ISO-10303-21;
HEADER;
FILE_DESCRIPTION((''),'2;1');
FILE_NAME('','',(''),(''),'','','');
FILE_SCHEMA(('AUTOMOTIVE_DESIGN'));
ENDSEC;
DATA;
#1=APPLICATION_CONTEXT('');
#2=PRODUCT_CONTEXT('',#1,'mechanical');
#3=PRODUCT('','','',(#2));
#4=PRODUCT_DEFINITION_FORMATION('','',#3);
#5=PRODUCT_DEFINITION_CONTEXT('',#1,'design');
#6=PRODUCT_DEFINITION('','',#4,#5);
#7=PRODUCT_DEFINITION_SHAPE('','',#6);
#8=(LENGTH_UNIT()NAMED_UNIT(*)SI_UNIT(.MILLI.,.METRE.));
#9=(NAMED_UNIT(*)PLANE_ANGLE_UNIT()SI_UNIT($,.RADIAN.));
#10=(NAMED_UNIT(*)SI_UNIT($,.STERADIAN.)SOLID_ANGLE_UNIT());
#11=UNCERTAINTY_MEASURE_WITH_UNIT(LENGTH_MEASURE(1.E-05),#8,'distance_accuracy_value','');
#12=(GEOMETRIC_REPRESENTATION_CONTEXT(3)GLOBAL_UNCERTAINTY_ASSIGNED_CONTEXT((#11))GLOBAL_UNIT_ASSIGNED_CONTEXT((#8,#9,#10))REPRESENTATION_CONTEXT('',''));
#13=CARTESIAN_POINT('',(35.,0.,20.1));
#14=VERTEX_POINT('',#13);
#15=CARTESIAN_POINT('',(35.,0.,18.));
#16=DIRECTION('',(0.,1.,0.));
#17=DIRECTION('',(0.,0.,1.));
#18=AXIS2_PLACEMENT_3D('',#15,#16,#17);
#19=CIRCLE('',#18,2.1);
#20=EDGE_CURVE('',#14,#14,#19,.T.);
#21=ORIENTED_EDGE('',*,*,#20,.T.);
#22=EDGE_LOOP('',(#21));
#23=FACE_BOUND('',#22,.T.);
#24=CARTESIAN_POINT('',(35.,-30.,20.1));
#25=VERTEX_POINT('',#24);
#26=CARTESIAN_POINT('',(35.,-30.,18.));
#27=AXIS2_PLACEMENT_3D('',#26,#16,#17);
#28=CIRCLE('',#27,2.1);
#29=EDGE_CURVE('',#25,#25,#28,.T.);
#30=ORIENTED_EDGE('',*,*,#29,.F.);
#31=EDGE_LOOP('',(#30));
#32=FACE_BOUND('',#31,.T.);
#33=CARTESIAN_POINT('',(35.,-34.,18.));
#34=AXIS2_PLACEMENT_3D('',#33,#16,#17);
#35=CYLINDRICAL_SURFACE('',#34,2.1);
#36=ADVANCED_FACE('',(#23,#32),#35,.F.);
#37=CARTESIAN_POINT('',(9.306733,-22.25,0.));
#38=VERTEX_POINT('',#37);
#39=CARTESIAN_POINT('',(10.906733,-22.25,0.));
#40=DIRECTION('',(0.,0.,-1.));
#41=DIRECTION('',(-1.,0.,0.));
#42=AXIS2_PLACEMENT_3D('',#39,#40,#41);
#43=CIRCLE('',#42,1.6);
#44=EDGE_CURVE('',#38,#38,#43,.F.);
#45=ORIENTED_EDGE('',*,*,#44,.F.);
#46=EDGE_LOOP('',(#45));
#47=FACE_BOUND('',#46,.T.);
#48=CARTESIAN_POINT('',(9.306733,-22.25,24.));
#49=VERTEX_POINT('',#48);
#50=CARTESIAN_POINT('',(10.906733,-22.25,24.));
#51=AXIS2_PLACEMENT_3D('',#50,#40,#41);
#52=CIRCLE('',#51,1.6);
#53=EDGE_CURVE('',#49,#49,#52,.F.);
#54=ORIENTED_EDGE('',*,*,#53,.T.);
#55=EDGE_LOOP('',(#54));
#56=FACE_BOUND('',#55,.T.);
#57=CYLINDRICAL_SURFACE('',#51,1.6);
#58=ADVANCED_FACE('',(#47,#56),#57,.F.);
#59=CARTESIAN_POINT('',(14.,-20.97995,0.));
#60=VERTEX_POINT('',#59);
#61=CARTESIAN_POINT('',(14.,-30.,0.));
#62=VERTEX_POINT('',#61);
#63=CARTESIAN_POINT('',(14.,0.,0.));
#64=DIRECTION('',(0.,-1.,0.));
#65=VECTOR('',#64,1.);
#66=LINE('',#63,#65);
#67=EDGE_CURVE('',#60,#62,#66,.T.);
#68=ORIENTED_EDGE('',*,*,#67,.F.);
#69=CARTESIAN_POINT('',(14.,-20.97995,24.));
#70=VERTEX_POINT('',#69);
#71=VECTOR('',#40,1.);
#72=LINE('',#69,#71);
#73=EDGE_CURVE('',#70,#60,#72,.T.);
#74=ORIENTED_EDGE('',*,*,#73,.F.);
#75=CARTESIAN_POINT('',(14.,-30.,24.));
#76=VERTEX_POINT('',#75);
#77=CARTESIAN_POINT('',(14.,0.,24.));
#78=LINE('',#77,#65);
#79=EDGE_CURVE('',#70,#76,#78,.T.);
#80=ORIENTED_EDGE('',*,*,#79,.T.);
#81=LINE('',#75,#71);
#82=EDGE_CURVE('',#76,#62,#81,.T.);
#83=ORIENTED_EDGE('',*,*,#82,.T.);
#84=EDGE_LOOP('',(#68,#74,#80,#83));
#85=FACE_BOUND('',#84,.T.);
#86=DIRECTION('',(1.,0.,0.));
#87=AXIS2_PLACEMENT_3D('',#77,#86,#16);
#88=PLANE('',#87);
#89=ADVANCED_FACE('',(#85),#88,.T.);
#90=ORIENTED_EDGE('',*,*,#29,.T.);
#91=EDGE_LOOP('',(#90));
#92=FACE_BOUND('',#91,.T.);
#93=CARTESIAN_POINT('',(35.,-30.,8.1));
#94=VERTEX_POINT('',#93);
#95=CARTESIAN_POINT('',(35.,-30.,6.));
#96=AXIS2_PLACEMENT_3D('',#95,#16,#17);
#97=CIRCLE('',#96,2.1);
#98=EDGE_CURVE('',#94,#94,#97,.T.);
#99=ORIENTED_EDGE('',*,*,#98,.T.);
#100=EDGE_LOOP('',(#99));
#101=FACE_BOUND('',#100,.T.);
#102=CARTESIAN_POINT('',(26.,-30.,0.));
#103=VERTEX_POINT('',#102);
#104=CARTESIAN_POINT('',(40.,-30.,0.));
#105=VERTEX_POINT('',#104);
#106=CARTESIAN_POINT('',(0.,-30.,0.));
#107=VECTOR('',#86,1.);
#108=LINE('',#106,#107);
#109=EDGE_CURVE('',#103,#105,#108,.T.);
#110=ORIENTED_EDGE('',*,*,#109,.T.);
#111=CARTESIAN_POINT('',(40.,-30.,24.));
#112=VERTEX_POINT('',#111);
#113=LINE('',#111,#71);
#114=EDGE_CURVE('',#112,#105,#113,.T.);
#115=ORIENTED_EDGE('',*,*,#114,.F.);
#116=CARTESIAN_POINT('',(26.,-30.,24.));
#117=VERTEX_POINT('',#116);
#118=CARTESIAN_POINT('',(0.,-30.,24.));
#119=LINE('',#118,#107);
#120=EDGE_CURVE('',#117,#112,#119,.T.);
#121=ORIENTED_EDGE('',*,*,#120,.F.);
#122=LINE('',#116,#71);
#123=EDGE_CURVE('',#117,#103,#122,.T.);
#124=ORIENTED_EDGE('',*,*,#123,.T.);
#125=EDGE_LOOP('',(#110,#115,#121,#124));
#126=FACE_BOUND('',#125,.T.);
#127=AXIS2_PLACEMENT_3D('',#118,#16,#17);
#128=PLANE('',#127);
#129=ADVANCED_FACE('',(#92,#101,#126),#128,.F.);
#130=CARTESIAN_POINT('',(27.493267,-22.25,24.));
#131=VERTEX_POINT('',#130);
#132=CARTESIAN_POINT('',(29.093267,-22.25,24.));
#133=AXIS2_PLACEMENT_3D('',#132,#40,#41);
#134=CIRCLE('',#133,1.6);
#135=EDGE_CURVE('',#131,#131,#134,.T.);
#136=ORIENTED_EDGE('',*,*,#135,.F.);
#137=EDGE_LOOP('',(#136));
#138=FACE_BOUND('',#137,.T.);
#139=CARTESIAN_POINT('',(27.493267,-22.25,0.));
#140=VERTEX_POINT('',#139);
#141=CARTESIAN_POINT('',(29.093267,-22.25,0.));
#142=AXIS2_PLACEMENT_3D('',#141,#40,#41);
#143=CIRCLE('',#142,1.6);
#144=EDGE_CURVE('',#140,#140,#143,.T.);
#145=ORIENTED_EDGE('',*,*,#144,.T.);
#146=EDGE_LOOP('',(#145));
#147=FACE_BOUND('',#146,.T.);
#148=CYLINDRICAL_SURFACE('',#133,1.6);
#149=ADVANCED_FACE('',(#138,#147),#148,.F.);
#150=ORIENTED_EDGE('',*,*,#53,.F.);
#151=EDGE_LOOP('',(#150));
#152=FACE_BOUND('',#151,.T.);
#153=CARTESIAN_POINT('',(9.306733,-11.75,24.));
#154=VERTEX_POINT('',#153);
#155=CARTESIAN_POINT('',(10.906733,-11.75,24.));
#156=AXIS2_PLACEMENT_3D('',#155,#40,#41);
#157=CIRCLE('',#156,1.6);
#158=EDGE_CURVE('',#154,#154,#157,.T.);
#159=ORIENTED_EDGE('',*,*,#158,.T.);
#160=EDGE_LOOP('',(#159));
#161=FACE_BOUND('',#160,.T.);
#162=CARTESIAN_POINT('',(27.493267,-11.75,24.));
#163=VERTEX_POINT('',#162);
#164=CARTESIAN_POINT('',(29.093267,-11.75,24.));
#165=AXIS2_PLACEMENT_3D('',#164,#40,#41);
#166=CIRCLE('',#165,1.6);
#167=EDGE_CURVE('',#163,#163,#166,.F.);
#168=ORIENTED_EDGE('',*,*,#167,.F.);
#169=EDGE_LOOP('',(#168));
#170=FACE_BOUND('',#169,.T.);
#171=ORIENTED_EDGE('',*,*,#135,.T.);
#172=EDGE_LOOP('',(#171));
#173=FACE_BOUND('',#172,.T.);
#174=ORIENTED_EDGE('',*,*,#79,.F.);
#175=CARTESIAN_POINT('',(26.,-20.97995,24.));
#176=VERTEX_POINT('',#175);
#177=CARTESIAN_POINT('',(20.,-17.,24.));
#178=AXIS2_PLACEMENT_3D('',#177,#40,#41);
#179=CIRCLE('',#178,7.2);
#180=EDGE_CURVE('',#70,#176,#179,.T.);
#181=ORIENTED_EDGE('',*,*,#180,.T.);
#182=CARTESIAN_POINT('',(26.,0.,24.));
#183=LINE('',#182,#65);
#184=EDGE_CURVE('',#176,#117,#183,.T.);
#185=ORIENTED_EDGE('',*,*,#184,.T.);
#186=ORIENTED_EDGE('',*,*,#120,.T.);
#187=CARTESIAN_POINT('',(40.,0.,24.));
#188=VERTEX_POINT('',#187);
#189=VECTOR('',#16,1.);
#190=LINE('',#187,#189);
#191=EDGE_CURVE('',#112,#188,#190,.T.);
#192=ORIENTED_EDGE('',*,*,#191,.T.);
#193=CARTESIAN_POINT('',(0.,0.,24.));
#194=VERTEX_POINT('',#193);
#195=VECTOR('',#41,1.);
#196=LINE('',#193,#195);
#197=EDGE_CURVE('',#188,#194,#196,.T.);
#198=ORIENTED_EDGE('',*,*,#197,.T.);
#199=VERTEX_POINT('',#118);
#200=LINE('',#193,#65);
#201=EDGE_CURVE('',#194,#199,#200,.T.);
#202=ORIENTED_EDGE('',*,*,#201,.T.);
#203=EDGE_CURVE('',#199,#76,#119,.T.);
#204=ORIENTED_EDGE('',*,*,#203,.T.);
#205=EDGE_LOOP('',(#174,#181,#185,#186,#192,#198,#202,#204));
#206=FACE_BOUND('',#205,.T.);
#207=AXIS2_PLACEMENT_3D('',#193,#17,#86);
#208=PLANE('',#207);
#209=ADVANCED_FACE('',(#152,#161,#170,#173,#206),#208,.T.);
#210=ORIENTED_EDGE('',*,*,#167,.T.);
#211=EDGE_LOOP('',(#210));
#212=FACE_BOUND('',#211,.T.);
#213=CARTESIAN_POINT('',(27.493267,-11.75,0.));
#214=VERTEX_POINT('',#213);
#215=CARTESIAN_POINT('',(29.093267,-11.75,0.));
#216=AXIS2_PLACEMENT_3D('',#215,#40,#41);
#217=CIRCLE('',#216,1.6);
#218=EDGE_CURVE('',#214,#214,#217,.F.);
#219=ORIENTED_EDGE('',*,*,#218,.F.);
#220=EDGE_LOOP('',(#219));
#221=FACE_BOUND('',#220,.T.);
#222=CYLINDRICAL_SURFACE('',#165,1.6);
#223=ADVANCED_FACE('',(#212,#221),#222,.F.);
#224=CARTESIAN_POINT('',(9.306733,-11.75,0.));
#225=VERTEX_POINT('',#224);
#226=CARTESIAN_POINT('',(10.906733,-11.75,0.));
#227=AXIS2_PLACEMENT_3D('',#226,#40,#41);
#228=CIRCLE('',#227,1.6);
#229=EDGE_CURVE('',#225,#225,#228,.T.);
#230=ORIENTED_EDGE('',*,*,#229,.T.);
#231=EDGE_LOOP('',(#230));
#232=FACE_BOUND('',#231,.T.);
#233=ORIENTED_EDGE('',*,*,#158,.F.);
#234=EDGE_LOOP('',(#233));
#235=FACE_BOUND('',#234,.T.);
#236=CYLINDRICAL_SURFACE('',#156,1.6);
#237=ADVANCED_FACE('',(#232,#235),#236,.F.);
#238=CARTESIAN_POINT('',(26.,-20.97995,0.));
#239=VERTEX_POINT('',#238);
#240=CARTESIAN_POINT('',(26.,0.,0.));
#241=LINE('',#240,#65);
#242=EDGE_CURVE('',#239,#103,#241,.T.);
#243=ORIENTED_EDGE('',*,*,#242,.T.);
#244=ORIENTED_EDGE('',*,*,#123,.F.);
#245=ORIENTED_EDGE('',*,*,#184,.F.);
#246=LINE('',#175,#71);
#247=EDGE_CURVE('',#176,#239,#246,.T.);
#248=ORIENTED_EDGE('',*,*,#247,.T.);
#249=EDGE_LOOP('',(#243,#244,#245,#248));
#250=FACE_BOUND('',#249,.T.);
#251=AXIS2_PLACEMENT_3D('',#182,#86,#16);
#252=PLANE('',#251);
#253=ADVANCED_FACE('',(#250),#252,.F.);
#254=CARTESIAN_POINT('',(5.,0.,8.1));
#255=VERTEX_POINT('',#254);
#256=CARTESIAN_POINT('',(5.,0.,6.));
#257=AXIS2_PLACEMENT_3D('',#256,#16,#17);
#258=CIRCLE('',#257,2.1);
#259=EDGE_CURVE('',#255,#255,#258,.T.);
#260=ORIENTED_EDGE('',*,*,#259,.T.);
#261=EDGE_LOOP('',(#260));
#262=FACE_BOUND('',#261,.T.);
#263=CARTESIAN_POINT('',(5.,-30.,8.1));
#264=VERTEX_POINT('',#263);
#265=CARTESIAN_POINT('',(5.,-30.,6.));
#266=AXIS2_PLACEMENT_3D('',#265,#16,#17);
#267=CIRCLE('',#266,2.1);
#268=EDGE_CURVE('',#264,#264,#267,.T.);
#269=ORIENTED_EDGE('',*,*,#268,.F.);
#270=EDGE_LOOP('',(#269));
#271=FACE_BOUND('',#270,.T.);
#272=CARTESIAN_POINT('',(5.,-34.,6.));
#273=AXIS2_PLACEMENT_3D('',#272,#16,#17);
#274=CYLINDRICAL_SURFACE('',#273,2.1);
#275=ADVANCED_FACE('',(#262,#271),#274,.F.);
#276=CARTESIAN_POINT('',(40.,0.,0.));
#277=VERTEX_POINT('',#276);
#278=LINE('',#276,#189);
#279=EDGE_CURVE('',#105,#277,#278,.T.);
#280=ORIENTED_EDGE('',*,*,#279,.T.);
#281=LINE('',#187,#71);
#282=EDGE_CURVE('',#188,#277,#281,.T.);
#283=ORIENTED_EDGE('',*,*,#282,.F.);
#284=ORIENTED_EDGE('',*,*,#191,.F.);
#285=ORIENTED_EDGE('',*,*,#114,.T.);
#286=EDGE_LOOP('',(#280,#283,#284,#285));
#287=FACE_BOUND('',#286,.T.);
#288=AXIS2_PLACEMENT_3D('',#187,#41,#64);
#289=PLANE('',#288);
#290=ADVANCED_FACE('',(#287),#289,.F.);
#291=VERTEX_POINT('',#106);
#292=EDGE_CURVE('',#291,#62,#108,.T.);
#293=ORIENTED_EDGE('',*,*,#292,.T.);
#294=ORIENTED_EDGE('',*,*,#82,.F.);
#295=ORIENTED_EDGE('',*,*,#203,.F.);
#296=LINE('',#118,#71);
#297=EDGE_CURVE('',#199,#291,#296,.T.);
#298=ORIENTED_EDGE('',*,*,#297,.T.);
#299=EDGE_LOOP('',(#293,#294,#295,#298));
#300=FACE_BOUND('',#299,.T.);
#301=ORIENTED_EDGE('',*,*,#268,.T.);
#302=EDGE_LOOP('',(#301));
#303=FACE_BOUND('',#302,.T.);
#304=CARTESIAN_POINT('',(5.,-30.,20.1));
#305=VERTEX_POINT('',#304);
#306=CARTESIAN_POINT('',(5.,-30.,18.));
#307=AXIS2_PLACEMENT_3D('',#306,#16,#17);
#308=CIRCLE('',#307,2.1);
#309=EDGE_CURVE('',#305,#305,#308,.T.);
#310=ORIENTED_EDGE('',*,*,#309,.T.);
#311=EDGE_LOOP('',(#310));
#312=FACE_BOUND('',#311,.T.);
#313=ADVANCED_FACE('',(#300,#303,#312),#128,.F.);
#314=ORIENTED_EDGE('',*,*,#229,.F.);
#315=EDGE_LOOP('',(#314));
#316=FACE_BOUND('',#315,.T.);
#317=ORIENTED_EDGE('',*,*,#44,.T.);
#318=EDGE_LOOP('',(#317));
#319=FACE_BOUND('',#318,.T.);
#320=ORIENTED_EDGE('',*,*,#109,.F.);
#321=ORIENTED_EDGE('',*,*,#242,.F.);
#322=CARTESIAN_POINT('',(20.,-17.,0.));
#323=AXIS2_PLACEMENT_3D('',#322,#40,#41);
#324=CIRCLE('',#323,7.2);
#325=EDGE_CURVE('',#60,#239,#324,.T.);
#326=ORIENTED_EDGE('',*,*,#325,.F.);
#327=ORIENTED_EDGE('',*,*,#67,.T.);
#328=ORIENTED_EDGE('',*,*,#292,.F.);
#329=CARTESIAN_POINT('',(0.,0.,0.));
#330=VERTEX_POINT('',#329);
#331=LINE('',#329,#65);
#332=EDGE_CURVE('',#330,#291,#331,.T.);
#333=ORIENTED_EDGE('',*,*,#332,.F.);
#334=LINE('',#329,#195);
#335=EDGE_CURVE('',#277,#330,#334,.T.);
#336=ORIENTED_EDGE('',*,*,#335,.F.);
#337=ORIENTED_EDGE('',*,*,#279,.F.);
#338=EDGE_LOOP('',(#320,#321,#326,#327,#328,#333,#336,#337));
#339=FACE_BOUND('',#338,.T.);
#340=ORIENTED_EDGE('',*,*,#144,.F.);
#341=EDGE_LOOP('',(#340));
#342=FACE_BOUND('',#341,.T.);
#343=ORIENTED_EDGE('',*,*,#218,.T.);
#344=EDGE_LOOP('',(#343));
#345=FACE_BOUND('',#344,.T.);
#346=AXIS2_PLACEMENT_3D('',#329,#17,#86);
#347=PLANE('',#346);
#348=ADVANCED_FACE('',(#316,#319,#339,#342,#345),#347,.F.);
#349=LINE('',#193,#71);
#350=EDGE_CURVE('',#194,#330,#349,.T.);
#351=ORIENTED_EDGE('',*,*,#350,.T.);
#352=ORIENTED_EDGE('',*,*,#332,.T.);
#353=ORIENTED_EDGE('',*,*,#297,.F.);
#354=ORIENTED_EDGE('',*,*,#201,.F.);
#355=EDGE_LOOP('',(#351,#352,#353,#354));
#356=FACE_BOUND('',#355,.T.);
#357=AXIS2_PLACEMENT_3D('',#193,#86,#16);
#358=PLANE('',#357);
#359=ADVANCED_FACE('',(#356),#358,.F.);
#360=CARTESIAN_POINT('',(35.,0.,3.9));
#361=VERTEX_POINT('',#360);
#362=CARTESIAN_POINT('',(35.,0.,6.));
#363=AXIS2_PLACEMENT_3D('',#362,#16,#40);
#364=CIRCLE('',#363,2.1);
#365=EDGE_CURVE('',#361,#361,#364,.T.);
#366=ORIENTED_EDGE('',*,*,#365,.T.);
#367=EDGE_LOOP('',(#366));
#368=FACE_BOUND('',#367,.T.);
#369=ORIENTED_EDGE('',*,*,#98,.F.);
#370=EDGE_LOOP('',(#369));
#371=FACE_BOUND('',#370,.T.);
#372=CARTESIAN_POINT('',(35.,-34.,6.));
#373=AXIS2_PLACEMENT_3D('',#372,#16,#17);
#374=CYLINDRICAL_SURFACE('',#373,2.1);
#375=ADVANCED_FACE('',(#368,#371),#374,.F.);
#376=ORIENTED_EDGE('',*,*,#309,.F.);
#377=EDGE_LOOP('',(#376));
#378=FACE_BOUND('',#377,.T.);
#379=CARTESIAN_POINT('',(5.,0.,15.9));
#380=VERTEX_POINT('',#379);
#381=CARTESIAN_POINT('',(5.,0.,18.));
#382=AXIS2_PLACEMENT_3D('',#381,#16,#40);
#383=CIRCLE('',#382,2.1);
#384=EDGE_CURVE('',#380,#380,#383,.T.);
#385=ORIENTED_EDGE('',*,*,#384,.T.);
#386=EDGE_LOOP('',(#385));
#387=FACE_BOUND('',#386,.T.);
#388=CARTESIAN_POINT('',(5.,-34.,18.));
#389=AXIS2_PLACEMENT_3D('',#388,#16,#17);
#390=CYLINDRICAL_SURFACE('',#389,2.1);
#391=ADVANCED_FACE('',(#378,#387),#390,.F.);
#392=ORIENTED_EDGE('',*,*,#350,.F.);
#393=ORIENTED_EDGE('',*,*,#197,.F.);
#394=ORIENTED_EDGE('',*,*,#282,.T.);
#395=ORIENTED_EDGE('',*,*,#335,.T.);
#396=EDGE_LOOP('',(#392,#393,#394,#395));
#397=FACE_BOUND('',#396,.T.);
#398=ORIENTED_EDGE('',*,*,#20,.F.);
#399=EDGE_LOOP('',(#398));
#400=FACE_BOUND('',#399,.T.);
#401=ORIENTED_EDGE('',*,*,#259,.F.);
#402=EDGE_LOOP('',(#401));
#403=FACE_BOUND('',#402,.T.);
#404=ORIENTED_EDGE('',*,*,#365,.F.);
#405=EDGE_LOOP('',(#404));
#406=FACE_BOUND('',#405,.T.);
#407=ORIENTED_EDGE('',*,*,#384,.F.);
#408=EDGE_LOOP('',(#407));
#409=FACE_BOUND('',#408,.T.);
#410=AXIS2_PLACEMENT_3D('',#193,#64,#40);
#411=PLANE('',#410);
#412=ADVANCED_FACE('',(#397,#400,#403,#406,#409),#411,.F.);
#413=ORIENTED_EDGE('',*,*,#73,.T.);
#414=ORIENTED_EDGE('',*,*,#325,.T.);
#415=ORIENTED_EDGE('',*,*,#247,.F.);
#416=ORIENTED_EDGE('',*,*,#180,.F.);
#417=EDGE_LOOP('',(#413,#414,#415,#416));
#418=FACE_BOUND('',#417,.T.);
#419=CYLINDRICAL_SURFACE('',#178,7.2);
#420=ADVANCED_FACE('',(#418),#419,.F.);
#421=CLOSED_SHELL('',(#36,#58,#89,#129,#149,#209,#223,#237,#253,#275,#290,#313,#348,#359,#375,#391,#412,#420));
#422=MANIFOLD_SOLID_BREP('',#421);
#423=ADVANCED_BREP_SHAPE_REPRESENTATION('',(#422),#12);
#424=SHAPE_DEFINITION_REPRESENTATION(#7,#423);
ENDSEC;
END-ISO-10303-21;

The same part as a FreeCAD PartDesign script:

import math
import FreeCAD as App
import Part
import Sketcher
from FreeCAD import Vector
Q = App.Units.Quantity


def add_polygon(sketch, points):
    """Adds a closed chain of lines whose ends are joined by coincident constraints."""
    first, n = sketch.GeometryCount, len(points)
    for a, b in zip(points, points[1:] + points[:1]):
        sketch.addGeometry(Part.LineSegment(App.Vector(*a, 0), App.Vector(*b, 0)), False)
    for i in range(n):
        sketch.addConstraint(Sketcher.Constraint("Coincident", first + i, 2, first + (i + 1) % n, 1))

doc = App.newDocument("Part")
body = doc.addObject("PartDesign::Body", "Body")

sketch1 = doc.addObject("Sketcher::SketchObject", "Sketch")
body.addObject(sketch1)
sketch1.AttachmentSupport = (doc.XY_Plane, [""])
sketch1.MapMode = "FlatFace"
add_polygon(sketch1, [(0, 0), (0, -30), (40, -30), (40, 0)])
sketch1.addConstraint([
    Sketcher.Constraint("Vertical", 0),
    Sketcher.Constraint("Horizontal", 1),
    Sketcher.Constraint("Vertical", 2),
    Sketcher.Constraint("Horizontal", 3),
    Sketcher.Constraint("Coincident", 3, 2, -1, 1),
    Sketcher.Constraint("DistanceX", 1, 1, 1, 2, Q("40 mm")),
    Sketcher.Constraint("DistanceY", 0, 2, 0, 1, Q("30 mm")),
])
pad1 = doc.addObject("PartDesign::Pad", "Pad")
body.addObject(pad1)
pad1.Profile = sketch1
pad1.Length = 24

sketch2 = doc.addObject("Sketcher::SketchObject", "Sketch001")
body.addObject(sketch2)
sketch2.AttachmentSupport = (doc.XY_Plane, [""])
sketch2.MapMode = "FlatFace"
sketch2.addGeometry([
    Part.ArcOfCircle(Part.Circle(Vector(20, -17, 0), Vector(0, 0, 1), 7.2), math.radians(-34), math.radians(214)),
    Part.LineSegment(Vector(26, -21, 0), Vector(26, -30, 0)),
    Part.LineSegment(Vector(26, -30, 0), Vector(14, -30, 0)),
    Part.LineSegment(Vector(14, -30, 0), Vector(14, -21, 0)),
    Part.Circle(Vector(10.9, -11.8, 0), Vector(0, 0, 1), 1.6),
    Part.Circle(Vector(10.9, -22.2, 0), Vector(0, 0, 1), 1.6),
    Part.Circle(Vector(29.1, -22.2, 0), Vector(0, 0, 1), 1.6),
    Part.Circle(Vector(29.1, -11.8, 0), Vector(0, 0, 1), 1.6),
], False)
sketch2.addConstraint([
    Sketcher.Constraint("Coincident", 0, 1, 1, 1),
    Sketcher.Constraint("Coincident", 1, 2, 2, 1),
    Sketcher.Constraint("Coincident", 2, 2, 3, 1),
    Sketcher.Constraint("Coincident", 3, 2, 0, 2),
    Sketcher.Constraint("Vertical", 1),
    Sketcher.Constraint("Horizontal", 2),
    Sketcher.Constraint("Vertical", 3),
    Sketcher.Constraint("Equal", 4, 5),
    Sketcher.Constraint("Equal", 5, 6),
    Sketcher.Constraint("Equal", 6, 7),
    Sketcher.Constraint("Horizontal", 5, 3, 6, 3),
    Sketcher.Constraint("Horizontal", 4, 3, 7, 3),
    Sketcher.Constraint("Horizontal", 0, 1, 3, 2),
    Sketcher.Constraint("Vertical", 4, 3, 5, 3),
    Sketcher.Constraint("Vertical", 6, 3, 7, 3),
    Sketcher.Constraint("Diameter", 4, Q("3.2 mm")),
    Sketcher.Constraint("Radius", 0, Q("7.2 mm")),
    Sketcher.Constraint("DistanceX", 2, 2, 2, 1, Q("12 mm")),
    Sketcher.Constraint("DistanceX", -1, 1, 0, 3, Q("20 mm")),
    Sketcher.Constraint("DistanceY", 0, 3, -1, 1, Q("17 mm")),
    Sketcher.Constraint("DistanceY", 1, 2, -1, 1, Q("30 mm")),
    Sketcher.Constraint("DistanceY", 5, 3, 4, 3, Q("10.5 mm")),
    Sketcher.Constraint("DistanceY", 4, 3, -1, 1, Q("11.75 mm")),
    Sketcher.Constraint("DistanceX", -1, 1, 4, 3, Q("10.906733 mm")),
    Sketcher.Constraint("DistanceX", -1, 1, 6, 3, Q("29.093267 mm")),
])
pocket1 = doc.addObject("PartDesign::Pocket", "Pocket")
body.addObject(pocket1)
pocket1.Profile = sketch2
pocket1.Length = 24
pocket1.Reversed = True

sketch3 = doc.addObject("Sketcher::SketchObject", "Sketch002")
body.addObject(sketch3)
sketch3.AttachmentSupport = (doc.XZ_Plane, [""])
sketch3.MapMode = "FlatFace"
sketch3.addGeometry([
    Part.Circle(Vector(5, 6, 0), Vector(0, 0, 1), 2.1),
    Part.Circle(Vector(35, 6, 0), Vector(0, 0, 1), 2.1),
    Part.Circle(Vector(5, 18, 0), Vector(0, 0, 1), 2.1),
    Part.Circle(Vector(35, 18, 0), Vector(0, 0, 1), 2.1),
], False)
sketch3.addConstraint([
    Sketcher.Constraint("Equal", 0, 1),
    Sketcher.Constraint("Equal", 1, 2),
    Sketcher.Constraint("Equal", 2, 3),
    Sketcher.Constraint("Horizontal", 0, 3, 1, 3),
    Sketcher.Constraint("Horizontal", 2, 3, 3, 3),
    Sketcher.Constraint("Vertical", 0, 3, 2, 3),
    Sketcher.Constraint("Vertical", 1, 3, 3, 3),
    Sketcher.Constraint("Diameter", 0, Q("4.2 mm")),
    Sketcher.Constraint("DistanceX", -1, 1, 0, 3, Q("5 mm")),
    Sketcher.Constraint("DistanceY", -1, 1, 0, 3, Q("6 mm")),
    Sketcher.Constraint("DistanceX", -1, 1, 1, 3, Q("35 mm")),
    Sketcher.Constraint("DistanceY", -1, 1, 2, 3, Q("18 mm")),
])
pocket2 = doc.addObject("PartDesign::Pocket", "Pocket001")
body.addObject(pocket2)
pocket2.Profile = sketch3
pocket2.Length = 34
pocket2.Reversed = True

doc.recompute()
